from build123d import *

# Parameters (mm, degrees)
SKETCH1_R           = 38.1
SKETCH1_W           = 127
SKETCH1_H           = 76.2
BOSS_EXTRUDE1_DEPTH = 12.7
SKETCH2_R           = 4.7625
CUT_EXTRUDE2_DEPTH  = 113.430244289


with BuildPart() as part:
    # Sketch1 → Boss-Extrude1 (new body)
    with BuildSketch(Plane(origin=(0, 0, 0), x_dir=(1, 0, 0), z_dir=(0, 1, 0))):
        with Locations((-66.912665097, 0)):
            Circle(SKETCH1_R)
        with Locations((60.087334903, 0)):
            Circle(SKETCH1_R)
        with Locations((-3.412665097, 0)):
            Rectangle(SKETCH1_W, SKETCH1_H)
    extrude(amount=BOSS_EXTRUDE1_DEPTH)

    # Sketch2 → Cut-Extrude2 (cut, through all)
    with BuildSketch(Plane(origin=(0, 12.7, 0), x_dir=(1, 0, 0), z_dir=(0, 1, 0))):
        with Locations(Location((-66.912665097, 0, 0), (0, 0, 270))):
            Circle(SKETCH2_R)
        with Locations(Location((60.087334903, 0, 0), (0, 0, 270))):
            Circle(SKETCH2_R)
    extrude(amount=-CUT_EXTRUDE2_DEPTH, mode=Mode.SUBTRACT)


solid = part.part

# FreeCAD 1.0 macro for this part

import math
import FreeCAD as App
import Part
import Sketcher
Q = App.Units.Quantity

doc = App.newDocument("Part")
body = doc.addObject("PartDesign::Body", "Body")

# Sketch on XZ plane
sketch1 = body.newObject("Sketcher::SketchObject", "Sketch")
sketch1.AttachmentSupport = (doc.getObject("XZ_Plane"), [""])
sketch1.MapMode = "FlatFace"
sketch1.addGeometry([
    Part.LineSegment(App.Vector(-67, 38, 0), App.Vector(60, 38, 0)),
    Part.ArcOfCircle(Part.Circle(App.Vector(60, 0, 0), App.Vector(0, 0, 1), 38), math.radians(-90), math.radians(90)),
    Part.LineSegment(App.Vector(60, -38, 0), App.Vector(-67, -38, 0)),
    Part.ArcOfCircle(Part.Circle(App.Vector(-67, 0, 0), App.Vector(0, 0, 1), 38), math.radians(90), math.radians(270)),
], False)
sketch1.addConstraint([
    Sketcher.Constraint("Tangent", 0, 2, 1, 2),
    Sketcher.Constraint("Tangent", 1, 1, 2, 1),
    Sketcher.Constraint("Tangent", 2, 2, 3, 2),
    Sketcher.Constraint("Tangent", 3, 1, 0, 1),
    Sketcher.Constraint("Horizontal", 0),
    Sketcher.Constraint("Horizontal", 2),
    Sketcher.Constraint("PointOnObject", 1, 3, -1),
    Sketcher.Constraint("Radius", 1, Q("1.5 in")),
    Sketcher.Constraint("DistanceX", 0, 1, 0, 2, Q("5 in")),
    Sketcher.Constraint("DistanceX", -1, 1, 1, 3, 60.087335),
])
pad1 = body.newObject("PartDesign::Pad", "Pad")
pad1.Profile = sketch1
pad1.Length = Q("0.5 in")
pad1.Reversed = True

# Sketch on XZ plane
sketch2 = body.newObject("Sketcher::SketchObject", "Sketch001")
sketch2.AttachmentSupport = (doc.getObject("XZ_Plane"), [""])
sketch2.MapMode = "FlatFace"
sketch2.AttachmentOffset = App.Placement(App.Vector(0, 0, -0.5 * 25.4), App.Rotation())
sketch2.addGeometry([
    Part.Circle(App.Vector(-66.9, 0, 0), App.Vector(0, 0, 1), 4.8),
    Part.Circle(App.Vector(60.1, 0, 0), App.Vector(0, 0, 1), 4.8),
], False)
sketch2.addConstraint([
    Sketcher.Constraint("Equal", 0, 1),
    Sketcher.Constraint("PointOnObject", 0, 3, -1),
    Sketcher.Constraint("PointOnObject", 1, 3, -1),
    Sketcher.Constraint("Diameter", 0, Q("0.375 in")),
    Sketcher.Constraint("DistanceX", 0, 3, 1, 3, Q("5 in")),
    Sketcher.Constraint("DistanceX", 0, 3, -1, 1, 66.912665),
])
pocket1 = body.newObject("PartDesign::Pocket", "Pocket")
pocket1.Profile = sketch2
pocket1.Type = "ThroughAll"
pocket1.Reversed = True

doc.recompute()
